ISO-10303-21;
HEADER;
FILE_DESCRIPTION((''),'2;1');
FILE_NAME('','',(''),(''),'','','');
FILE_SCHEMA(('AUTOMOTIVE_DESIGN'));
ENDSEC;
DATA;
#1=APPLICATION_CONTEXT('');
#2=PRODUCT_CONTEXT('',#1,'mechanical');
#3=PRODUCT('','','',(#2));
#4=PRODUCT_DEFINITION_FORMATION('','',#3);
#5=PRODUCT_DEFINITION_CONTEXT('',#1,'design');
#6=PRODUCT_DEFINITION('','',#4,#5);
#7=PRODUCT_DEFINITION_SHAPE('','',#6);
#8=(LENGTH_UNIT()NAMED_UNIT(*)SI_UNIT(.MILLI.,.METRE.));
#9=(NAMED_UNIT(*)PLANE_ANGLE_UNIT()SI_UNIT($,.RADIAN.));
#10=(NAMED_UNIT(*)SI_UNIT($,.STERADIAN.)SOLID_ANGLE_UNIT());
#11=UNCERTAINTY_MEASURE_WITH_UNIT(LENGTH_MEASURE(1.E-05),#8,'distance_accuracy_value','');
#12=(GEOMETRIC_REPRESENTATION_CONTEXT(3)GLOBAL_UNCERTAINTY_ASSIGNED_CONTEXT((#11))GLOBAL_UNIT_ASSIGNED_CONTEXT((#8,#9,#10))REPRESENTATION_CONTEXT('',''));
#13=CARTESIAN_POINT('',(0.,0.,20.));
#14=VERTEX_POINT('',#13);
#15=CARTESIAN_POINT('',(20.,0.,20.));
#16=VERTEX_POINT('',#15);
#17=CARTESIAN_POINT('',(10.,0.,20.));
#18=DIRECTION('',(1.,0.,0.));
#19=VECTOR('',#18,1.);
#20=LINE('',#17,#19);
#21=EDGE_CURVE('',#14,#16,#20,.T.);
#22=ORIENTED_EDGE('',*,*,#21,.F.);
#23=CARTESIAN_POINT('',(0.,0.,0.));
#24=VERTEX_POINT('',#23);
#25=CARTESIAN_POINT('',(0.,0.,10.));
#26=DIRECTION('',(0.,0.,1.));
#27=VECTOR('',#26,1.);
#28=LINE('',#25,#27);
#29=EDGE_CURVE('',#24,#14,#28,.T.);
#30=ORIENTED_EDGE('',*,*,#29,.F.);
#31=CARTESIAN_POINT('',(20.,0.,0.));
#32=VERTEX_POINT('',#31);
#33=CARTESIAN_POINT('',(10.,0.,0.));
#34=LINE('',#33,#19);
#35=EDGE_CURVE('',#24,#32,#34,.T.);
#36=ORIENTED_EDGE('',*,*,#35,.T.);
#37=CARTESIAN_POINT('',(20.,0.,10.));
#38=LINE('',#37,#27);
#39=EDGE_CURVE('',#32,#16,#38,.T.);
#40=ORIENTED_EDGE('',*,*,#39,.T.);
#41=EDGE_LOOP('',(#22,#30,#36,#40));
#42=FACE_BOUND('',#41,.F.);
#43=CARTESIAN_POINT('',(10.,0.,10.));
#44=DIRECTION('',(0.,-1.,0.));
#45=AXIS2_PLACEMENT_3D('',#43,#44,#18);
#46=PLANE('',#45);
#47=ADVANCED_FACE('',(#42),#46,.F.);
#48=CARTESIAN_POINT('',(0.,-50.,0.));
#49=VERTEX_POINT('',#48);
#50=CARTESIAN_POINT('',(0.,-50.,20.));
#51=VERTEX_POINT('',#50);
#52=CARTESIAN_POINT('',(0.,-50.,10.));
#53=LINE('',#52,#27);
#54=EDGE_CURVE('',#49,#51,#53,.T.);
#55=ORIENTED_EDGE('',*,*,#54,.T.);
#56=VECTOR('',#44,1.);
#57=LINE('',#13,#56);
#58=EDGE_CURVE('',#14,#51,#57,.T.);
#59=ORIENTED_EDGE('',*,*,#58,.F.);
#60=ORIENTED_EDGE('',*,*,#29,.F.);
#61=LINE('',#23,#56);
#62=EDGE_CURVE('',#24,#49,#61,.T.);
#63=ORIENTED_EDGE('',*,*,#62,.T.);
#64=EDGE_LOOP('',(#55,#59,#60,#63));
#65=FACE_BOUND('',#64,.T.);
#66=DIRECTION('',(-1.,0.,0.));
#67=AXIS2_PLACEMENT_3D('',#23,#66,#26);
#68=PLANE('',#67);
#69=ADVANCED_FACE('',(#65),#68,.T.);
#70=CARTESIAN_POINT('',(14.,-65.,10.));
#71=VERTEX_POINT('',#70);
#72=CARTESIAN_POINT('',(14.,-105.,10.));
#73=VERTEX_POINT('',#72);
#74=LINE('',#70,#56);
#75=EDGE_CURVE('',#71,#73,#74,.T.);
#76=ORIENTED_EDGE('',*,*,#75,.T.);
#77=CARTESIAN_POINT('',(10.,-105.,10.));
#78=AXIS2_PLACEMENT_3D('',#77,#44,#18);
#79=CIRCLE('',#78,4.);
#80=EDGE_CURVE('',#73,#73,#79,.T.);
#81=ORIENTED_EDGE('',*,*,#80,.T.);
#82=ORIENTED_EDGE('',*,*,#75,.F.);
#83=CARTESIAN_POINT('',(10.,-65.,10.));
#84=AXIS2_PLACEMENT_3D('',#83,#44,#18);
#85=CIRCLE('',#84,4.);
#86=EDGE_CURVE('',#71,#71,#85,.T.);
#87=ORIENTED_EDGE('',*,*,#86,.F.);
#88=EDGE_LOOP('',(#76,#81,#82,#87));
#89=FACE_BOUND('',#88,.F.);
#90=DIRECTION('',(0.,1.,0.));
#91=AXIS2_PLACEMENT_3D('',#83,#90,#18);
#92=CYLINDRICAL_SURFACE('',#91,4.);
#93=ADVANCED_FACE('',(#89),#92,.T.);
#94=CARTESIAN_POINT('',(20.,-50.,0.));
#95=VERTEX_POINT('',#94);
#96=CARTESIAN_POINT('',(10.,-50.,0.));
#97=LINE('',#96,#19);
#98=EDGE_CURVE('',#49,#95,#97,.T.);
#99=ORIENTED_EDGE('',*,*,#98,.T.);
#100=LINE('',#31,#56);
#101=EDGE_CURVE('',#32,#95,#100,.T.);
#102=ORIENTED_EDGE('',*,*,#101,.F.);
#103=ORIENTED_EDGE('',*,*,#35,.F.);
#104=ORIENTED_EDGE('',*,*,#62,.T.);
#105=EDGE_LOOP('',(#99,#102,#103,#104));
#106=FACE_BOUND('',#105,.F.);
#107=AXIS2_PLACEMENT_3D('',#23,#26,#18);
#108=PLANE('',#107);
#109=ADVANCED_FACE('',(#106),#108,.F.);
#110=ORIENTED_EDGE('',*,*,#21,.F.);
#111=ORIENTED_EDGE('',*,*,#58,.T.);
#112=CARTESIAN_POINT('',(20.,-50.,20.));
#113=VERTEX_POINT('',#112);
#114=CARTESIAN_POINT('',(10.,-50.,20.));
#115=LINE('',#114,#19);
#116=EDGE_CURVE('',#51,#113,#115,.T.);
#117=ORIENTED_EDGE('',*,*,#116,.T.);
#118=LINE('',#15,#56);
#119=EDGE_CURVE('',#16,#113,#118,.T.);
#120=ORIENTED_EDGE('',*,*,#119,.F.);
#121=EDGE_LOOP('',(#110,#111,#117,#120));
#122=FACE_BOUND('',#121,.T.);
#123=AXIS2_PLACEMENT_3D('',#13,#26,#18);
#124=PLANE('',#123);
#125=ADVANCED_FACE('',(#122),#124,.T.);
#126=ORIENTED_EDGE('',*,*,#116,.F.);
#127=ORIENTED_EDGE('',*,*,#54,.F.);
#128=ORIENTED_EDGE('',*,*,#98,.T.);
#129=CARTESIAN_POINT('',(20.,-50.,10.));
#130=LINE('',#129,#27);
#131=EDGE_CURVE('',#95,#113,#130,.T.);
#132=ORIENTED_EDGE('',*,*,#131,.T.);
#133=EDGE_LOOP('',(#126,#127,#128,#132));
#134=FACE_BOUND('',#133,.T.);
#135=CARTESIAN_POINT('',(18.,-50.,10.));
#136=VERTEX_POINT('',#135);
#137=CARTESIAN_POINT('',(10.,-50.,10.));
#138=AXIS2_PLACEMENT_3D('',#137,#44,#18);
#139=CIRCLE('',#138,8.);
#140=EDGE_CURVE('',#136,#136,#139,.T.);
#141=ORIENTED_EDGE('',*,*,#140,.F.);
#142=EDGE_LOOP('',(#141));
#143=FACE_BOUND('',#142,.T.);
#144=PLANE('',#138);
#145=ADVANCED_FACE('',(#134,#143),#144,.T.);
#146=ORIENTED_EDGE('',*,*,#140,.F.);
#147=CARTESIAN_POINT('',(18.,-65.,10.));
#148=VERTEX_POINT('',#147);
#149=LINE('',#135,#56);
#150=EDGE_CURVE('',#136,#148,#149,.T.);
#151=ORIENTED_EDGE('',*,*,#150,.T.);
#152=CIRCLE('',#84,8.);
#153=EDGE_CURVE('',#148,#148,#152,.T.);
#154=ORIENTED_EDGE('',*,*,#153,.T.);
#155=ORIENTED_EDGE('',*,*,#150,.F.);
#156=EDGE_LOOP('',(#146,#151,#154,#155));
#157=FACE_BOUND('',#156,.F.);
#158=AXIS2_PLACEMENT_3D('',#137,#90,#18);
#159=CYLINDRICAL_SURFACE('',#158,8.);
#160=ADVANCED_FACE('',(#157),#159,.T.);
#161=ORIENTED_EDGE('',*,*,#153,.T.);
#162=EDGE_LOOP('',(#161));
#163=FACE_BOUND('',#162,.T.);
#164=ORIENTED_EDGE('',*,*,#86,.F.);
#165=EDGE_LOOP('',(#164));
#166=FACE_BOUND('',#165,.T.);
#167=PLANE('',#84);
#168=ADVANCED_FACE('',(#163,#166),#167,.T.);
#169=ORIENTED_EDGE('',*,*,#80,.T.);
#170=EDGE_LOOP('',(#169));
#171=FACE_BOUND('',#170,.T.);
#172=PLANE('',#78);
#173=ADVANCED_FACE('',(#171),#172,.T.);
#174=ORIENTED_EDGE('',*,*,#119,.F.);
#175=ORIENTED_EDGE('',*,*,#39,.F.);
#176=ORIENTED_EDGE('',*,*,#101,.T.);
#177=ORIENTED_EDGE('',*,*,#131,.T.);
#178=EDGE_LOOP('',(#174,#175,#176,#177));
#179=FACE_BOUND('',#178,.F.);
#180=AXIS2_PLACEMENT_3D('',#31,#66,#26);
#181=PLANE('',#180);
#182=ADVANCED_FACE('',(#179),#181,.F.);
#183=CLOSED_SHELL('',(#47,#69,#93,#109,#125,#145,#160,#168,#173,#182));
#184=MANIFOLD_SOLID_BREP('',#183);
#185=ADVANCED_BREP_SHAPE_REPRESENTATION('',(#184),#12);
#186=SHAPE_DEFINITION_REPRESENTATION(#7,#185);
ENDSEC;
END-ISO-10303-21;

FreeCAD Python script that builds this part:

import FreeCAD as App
import Part
import Sketcher
from FreeCAD import Vector
Q = App.Units.Quantity


def add_polygon(sketch, points):
    """Adds a closed chain of lines whose ends are joined by coincident constraints."""
    first, n = sketch.GeometryCount, len(points)
    for a, b in zip(points, points[1:] + points[:1]):
        sketch.addGeometry(Part.LineSegment(App.Vector(*a, 0), App.Vector(*b, 0)), False)
    for i in range(n):
        sketch.addConstraint(Sketcher.Constraint("Coincident", first + i, 2, first + (i + 1) % n, 1))

doc = App.newDocument("Part")
body = doc.addObject("PartDesign::Body", "Body")

# Sketch on XZ plane
sketch1 = body.newObject("Sketcher::SketchObject", "Sketch")
sketch1.AttachmentSupport = (doc.getObject("XZ_Plane"), [""])
sketch1.MapMode = "FlatFace"
add_polygon(sketch1, [(0, 20), (0, 0), (20, 0), (20, 20)])  # lines 0-3
sketch1.addConstraint(Sketcher.Constraint("Vertical", 0))
sketch1.addConstraint(Sketcher.Constraint("Horizontal", 1))
sketch1.addConstraint(Sketcher.Constraint("Vertical", 2))
sketch1.addConstraint(Sketcher.Constraint("Horizontal", 3))
sketch1.addConstraint(Sketcher.Constraint("Coincident", 0, 2, -1, 1))
sketch1.addConstraint(Sketcher.Constraint("Equal", 3, 0))
sketch1.addConstraint(Sketcher.Constraint("DistanceX", 1, 1, 1, 2, Q("20 mm")))
pad1 = body.newObject("PartDesign::Pad", "Pad")
pad1.Profile = sketch1
pad1.Length = 50

# Sketch on XZ plane
sketch2 = body.newObject("Sketcher::SketchObject", "Sketch001")
sketch2.AttachmentSupport = (doc.getObject("XZ_Plane"), [""])
sketch2.MapMode = "FlatFace"
sketch2.AttachmentOffset = App.Placement(Vector(0, 0, 50), App.Rotation())
sketch2.addGeometry(Part.Circle(Vector(10, 10, 0), Vector(0, 0, 1), 8), False)
sketch2.addConstraint(Sketcher.Constraint("Diameter", 0, Q("16 mm")))
sketch2.addConstraint(Sketcher.Constraint("DistanceX", -1, 1, 0, 3, Q("10 mm")))
sketch2.addConstraint(Sketcher.Constraint("DistanceY", -1, 1, 0, 3, Q("10 mm")))
pad2 = body.newObject("PartDesign::Pad", "Pad001")
pad2.Profile = sketch2
pad2.Length = 15

# Sketch on XZ plane
sketch3 = body.newObject("Sketcher::SketchObject", "Sketch002")
sketch3.AttachmentSupport = (doc.getObject("XZ_Plane"), [""])
sketch3.MapMode = "FlatFace"
sketch3.AttachmentOffset = App.Placement(Vector(0, 0, 65), App.Rotation())
sketch3.addGeometry(Part.Circle(Vector(10, 10, 0), Vector(0, 0, 1), 4), False)
sketch3.addConstraint(Sketcher.Constraint("Diameter", 0, Q("8 mm")))
sketch3.addConstraint(Sketcher.Constraint("DistanceX", -1, 1, 0, 3, Q("10 mm")))
sketch3.addConstraint(Sketcher.Constraint("DistanceY", -1, 1, 0, 3, Q("10 mm")))
pad3 = body.newObject("PartDesign::Pad", "Pad002")
pad3.Profile = sketch3
pad3.Length = 40

doc.recompute()
